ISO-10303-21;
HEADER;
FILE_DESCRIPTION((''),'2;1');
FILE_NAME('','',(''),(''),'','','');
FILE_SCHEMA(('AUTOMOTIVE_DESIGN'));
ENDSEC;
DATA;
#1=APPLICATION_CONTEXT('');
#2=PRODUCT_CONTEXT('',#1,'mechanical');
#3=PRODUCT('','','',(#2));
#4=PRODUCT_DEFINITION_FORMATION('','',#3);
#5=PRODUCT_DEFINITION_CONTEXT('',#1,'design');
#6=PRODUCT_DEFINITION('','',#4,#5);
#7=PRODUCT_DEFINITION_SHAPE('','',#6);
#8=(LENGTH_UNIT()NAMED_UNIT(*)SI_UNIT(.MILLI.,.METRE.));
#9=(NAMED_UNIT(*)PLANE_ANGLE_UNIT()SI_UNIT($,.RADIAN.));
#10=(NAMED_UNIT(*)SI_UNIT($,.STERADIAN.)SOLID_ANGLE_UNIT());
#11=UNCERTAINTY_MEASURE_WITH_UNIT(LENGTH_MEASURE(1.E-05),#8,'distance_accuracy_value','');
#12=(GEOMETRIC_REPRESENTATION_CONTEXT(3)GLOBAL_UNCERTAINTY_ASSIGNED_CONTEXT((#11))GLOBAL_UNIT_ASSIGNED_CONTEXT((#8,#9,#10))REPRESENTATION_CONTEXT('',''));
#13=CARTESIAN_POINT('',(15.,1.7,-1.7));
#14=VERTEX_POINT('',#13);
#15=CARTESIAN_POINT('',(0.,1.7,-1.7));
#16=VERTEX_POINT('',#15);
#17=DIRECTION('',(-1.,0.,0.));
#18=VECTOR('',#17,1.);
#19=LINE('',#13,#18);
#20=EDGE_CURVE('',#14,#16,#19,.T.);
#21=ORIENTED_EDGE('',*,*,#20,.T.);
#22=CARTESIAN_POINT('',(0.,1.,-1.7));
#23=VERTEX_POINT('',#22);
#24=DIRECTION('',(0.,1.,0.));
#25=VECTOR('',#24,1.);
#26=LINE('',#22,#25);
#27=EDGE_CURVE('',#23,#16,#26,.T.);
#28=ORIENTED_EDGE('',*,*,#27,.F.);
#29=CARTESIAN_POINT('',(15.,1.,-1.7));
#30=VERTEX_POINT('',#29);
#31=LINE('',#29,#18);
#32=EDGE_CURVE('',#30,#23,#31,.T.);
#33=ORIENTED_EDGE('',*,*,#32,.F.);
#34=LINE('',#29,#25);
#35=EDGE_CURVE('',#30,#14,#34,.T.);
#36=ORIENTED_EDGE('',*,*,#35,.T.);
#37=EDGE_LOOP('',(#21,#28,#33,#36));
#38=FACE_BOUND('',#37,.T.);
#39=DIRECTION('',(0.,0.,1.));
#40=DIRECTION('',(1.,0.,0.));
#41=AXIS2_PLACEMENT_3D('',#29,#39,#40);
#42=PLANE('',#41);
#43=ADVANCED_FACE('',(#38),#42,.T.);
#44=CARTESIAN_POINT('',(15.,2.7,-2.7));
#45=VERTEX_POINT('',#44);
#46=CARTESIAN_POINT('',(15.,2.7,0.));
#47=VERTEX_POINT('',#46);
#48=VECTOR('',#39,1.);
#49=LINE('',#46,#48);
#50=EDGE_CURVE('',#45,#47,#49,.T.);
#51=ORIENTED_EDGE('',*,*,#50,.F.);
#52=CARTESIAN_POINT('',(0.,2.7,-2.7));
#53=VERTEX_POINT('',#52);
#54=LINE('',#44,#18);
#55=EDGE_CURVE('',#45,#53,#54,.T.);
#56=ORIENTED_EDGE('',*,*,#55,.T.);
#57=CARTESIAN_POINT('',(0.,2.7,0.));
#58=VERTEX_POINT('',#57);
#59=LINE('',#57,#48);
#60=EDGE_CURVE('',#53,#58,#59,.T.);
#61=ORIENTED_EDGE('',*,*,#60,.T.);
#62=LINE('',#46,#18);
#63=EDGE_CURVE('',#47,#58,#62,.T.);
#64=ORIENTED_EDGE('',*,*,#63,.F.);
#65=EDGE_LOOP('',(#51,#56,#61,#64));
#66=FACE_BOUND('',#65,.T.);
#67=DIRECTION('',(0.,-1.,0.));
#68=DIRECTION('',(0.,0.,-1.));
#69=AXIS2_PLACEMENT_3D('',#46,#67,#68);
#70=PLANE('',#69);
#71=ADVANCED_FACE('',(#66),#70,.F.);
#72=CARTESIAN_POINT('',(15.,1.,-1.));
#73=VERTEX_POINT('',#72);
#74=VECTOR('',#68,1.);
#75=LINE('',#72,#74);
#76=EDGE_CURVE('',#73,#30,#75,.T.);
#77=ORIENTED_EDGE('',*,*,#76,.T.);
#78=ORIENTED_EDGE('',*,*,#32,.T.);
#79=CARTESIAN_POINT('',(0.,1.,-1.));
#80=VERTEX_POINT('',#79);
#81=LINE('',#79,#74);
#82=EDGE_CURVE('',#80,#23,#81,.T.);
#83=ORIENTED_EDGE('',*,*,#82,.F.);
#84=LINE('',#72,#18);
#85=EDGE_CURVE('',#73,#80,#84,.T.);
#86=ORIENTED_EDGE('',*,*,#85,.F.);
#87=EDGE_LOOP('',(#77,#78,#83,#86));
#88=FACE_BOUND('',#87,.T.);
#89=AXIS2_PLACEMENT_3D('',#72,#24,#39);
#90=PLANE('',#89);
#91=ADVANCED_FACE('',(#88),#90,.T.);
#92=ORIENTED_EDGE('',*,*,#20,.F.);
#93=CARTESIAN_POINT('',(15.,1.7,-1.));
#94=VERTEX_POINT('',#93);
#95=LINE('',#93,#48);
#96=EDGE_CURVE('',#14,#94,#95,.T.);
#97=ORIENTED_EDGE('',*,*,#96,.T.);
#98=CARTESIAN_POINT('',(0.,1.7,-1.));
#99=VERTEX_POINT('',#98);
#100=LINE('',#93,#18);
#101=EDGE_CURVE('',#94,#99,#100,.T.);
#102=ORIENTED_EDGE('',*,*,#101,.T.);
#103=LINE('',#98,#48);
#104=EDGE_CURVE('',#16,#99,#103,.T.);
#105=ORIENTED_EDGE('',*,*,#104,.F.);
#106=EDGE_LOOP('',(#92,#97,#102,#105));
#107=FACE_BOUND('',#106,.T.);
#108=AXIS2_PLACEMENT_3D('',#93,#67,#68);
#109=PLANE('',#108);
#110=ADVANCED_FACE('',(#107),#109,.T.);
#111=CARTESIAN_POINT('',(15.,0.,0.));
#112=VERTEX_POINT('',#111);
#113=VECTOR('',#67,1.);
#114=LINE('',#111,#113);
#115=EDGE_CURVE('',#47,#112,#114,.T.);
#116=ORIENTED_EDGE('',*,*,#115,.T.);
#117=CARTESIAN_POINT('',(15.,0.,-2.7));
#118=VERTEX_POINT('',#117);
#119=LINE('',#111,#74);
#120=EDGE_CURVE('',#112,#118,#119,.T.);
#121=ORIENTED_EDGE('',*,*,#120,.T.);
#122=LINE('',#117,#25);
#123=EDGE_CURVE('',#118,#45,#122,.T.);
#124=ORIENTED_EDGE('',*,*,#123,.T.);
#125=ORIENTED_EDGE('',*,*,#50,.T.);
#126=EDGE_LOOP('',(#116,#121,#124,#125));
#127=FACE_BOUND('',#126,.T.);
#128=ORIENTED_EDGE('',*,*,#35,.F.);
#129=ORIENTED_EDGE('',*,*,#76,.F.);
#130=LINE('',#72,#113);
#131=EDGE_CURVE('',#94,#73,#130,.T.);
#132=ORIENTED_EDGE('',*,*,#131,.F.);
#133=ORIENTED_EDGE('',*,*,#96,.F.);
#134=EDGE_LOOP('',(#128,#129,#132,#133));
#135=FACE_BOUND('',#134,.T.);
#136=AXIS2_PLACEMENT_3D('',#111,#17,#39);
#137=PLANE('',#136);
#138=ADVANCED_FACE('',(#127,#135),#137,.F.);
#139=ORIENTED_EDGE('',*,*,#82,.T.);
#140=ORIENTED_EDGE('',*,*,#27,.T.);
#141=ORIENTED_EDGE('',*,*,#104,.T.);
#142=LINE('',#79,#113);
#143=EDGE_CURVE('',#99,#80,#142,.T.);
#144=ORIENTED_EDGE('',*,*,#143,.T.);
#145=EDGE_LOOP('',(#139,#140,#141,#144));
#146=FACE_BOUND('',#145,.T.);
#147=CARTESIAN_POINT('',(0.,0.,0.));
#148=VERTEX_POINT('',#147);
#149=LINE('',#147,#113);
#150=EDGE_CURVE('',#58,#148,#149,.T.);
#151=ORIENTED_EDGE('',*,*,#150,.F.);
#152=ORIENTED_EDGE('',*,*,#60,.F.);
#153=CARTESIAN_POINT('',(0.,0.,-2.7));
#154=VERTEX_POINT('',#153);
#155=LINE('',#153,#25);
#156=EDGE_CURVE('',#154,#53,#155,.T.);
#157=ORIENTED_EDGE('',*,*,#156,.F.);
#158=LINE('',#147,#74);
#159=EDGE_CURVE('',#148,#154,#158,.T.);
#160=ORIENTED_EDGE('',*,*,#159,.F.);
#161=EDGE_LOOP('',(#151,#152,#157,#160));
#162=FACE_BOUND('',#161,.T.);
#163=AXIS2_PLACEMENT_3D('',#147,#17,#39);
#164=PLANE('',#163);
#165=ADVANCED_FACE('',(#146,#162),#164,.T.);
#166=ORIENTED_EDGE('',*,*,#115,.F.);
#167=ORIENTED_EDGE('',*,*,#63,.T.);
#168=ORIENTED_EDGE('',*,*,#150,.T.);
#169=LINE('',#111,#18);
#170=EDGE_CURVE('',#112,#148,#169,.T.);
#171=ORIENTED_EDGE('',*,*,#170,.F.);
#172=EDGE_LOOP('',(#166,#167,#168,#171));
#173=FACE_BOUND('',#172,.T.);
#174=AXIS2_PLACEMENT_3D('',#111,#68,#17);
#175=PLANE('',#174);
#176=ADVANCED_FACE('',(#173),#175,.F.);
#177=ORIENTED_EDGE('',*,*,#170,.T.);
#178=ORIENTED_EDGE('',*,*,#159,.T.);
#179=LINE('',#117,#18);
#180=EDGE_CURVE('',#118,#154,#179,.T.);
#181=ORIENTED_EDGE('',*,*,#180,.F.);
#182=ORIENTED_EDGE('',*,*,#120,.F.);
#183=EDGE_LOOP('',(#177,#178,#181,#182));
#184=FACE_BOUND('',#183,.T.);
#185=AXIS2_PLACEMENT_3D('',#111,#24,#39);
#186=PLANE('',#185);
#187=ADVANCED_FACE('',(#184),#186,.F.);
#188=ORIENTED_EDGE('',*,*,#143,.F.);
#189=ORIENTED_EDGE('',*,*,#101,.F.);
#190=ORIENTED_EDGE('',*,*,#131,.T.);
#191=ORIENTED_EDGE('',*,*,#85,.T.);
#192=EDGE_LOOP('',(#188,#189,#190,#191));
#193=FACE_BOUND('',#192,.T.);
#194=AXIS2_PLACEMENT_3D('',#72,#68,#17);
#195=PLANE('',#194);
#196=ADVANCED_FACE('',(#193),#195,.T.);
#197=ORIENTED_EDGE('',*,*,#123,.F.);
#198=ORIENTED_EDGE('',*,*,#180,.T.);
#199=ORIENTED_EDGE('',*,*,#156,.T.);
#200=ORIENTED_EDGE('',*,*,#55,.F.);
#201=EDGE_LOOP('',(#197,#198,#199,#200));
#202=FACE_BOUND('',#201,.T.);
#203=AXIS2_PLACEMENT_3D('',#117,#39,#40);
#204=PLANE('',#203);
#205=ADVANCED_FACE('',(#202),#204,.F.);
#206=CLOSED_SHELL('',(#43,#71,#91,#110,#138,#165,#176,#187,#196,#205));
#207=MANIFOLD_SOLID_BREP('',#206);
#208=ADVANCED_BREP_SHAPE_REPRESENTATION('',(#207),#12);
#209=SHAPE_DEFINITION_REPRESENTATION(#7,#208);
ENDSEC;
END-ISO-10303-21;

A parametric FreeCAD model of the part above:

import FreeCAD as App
import Part
import Sketcher

doc = App.newDocument("Part")
body = doc.addObject("PartDesign::Body", "Body")

# Sketch on YZ plane
sketch1 = doc.addObject("Sketcher::SketchObject", "Sketch")
body.addObject(sketch1)
sketch1.AttachmentSupport = (doc.YZ_Plane, [""])
sketch1.MapMode = "FlatFace"
sketch1.addGeometry([
    Part.LineSegment(App.Vector(2.7, 0, 0), App.Vector(0, 0, 0)),  # 0
    Part.LineSegment(App.Vector(0, 0, 0), App.Vector(0, -2.7, 0)),  # 1
    Part.LineSegment(App.Vector(0, -2.7, 0), App.Vector(2.7, -2.7, 0)),  # 2
    Part.LineSegment(App.Vector(2.7, -2.7, 0), App.Vector(2.7, 0, 0)),  # 3
    Part.LineSegment(App.Vector(1, -1.7, 0), App.Vector(1, -1, 0)),  # 4
    Part.LineSegment(App.Vector(1, -1, 0), App.Vector(1.7, -1, 0)),  # 5
    Part.LineSegment(App.Vector(1.7, -1, 0), App.Vector(1.7, -1.7, 0)),  # 6
    Part.LineSegment(App.Vector(1.7, -1.7, 0), App.Vector(1, -1.7, 0)),  # 7
], False)
sketch1.addConstraint([
    Sketcher.Constraint("Coincident", 0, 2, 1, 1),
    Sketcher.Constraint("Coincident", 1, 2, 2, 1),
    Sketcher.Constraint("Coincident", 2, 2, 3, 1),
    Sketcher.Constraint("Coincident", 3, 2, 0, 1),
    Sketcher.Constraint("Coincident", 4, 2, 5, 1),
    Sketcher.Constraint("Coincident", 5, 2, 6, 1),
    Sketcher.Constraint("Coincident", 6, 2, 7, 1),
    Sketcher.Constraint("Coincident", 7, 2, 4, 1),
    Sketcher.Constraint("Horizontal", 0),
    Sketcher.Constraint("Vertical", 1),
    Sketcher.Constraint("Horizontal", 2),
    Sketcher.Constraint("Vertical", 3),
    Sketcher.Constraint("Vertical", 4),
    Sketcher.Constraint("Horizontal", 5),
    Sketcher.Constraint("Vertical", 6),
    Sketcher.Constraint("Horizontal", 7),
    Sketcher.Constraint("Coincident", 0, 2, -1, 1),
    Sketcher.Constraint("Equal", 2, 1),
    Sketcher.Constraint("Equal", 7, 4),
    Sketcher.Constraint("DistanceX", 0, 2, 0, 1, 2.7),
    Sketcher.Constraint("DistanceX", 5, 1, 5, 2, 0.7),
    Sketcher.Constraint("DistanceX", -1, 1, 4, 2, 1.0),
    Sketcher.Constraint("DistanceY", 4, 2, -1, 1, 1.0),
])
pad1 = doc.addObject("PartDesign::Pad", "Pad")
body.addObject(pad1)
pad1.Profile = sketch1
pad1.Length = 15

doc.recompute()
